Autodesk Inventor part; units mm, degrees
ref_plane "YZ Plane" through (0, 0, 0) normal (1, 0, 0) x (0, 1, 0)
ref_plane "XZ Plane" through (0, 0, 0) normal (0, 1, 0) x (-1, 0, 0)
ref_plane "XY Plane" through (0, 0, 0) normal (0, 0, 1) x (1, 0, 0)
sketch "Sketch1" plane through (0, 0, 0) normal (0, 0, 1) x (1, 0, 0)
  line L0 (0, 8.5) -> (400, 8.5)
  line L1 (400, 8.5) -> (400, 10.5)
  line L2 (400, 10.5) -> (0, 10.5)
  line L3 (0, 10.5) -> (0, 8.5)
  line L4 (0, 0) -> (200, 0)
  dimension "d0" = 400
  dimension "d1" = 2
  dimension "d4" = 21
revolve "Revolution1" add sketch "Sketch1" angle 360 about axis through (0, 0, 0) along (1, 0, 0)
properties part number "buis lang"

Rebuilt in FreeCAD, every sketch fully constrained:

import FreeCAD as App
import Part
import Sketcher
Q = App.Units.Quantity


def add_polygon(sketch, points):
    """Adds a closed chain of lines whose ends are joined by coincident constraints."""
    first, n = sketch.GeometryCount, len(points)
    for a, b in zip(points, points[1:] + points[:1]):
        sketch.addGeometry(Part.LineSegment(App.Vector(*a, 0), App.Vector(*b, 0)), False)
    for i in range(n):
        sketch.addConstraint(Sketcher.Constraint("Coincident", first + i, 2, first + (i + 1) % n, 1))

doc = App.newDocument("Part")
body = doc.addObject("PartDesign::Body", "Body")

# Sketch on XY plane
sketch1 = body.newObject("Sketcher::SketchObject", "Sketch")
sketch1.AttachmentSupport = (doc.getObject("XY_Plane"), [""])
sketch1.MapMode = "FlatFace"
add_polygon(sketch1, [(0, 10.5), (0, 8.5), (400, 8.5), (400, 10.5)])  # lines 0-3
sketch1.addConstraint([
    Sketcher.Constraint("Vertical", 0),
    Sketcher.Constraint("Horizontal", 1),
    Sketcher.Constraint("Vertical", 2),
    Sketcher.Constraint("Horizontal", 3),
    Sketcher.Constraint("PointOnObject", 0, 2, -2),
    Sketcher.Constraint("DistanceX", 1, 1, 1, 2, Q("400 mm")),
    Sketcher.Constraint("DistanceY", 0, 2, 0, 1, Q("2 mm")),
    Sketcher.Constraint("DistanceY", -1, 1, 0, 2, Q("8.5 mm")),
])
revolution = body.newObject("PartDesign::Revolution", "Revolution")
revolution.Profile = sketch1
revolution.ReferenceAxis = (sketch1, ["H_Axis"])
revolution.Angle = 360

doc.recompute()
